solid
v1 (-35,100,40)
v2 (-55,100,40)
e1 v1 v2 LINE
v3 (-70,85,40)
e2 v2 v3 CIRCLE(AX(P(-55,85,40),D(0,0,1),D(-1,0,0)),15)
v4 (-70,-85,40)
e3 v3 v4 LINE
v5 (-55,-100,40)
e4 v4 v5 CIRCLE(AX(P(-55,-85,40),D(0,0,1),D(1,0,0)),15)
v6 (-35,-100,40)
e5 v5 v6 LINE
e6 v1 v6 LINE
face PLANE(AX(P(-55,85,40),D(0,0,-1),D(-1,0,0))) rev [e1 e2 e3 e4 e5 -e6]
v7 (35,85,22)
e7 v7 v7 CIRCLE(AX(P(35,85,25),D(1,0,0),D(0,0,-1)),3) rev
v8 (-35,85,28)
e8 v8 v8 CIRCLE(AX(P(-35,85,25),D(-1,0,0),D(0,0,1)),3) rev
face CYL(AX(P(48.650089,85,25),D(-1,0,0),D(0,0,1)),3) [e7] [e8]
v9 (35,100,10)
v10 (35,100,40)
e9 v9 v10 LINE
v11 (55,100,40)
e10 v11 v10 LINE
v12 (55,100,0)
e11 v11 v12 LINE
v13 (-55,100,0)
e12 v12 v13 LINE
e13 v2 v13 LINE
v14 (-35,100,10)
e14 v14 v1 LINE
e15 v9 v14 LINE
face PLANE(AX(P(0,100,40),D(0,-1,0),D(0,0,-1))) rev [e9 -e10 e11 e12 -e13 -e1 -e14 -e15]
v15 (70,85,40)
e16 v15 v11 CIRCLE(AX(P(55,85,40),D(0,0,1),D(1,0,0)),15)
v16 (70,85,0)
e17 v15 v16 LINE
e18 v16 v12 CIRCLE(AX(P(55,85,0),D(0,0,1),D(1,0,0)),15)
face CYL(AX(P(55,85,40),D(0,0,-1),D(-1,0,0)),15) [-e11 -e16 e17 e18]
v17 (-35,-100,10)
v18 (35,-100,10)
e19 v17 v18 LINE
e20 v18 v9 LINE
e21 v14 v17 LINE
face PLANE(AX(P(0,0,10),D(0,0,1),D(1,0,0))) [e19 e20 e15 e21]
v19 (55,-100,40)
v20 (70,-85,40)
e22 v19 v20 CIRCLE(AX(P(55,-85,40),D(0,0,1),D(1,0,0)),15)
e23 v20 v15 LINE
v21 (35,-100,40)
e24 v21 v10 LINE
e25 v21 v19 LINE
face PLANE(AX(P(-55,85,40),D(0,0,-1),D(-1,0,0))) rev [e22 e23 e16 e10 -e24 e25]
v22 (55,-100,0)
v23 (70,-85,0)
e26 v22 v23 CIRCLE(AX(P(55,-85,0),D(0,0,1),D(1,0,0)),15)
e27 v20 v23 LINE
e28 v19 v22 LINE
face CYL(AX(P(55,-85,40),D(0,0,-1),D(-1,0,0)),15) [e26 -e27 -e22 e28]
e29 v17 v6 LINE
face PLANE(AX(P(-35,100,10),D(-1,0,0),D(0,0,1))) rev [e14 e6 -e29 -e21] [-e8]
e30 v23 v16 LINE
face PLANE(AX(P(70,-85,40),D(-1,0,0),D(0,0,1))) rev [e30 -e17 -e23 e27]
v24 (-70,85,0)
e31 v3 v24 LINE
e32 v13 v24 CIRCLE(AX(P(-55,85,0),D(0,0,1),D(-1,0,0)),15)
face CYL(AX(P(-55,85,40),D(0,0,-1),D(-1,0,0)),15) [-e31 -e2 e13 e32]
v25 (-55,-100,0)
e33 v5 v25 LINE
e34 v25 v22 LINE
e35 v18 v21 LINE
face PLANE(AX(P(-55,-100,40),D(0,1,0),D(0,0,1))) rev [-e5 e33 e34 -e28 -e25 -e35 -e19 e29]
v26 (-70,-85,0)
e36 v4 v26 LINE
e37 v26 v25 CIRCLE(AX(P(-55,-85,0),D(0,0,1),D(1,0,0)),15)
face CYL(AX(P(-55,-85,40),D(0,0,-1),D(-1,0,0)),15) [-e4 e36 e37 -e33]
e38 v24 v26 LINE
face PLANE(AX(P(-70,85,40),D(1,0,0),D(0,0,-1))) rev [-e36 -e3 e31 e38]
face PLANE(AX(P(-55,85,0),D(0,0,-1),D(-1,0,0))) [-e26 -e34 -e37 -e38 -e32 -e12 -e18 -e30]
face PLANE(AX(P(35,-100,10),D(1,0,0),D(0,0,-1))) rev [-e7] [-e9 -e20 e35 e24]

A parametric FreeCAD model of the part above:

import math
import FreeCAD as App
import Part
import Sketcher

doc = App.newDocument("Part")
body = doc.addObject("PartDesign::Body", "Body")

# Sketch on XY plane
sketch1 = body.newObject("Sketcher::SketchObject", "Sketch")
sketch1.AttachmentSupport = (doc.getObject("XY_Plane"), [""])
sketch1.MapMode = "FlatFace"
sketch1.addGeometry([
    Part.ArcOfCircle(Part.Circle(App.Vector(-55, 85, 0), App.Vector(0, 0, 1), 15), math.radians(90), math.radians(180)),  # 0
    Part.LineSegment(App.Vector(-70, 85, 0), App.Vector(-70, -85, 0)),  # 1
    Part.ArcOfCircle(Part.Circle(App.Vector(-55, -85, 0), App.Vector(0, 0, 1), 15), math.radians(180), math.radians(270)),  # 2
    Part.LineSegment(App.Vector(-55, -100, 0), App.Vector(55, -100, 0)),  # 3
    Part.ArcOfCircle(Part.Circle(App.Vector(55, -85, 0), App.Vector(0, 0, 1), 15), math.radians(-90), math.radians(0)),  # 4
    Part.LineSegment(App.Vector(70, -85, 0), App.Vector(70, 85, 0)),  # 5
    Part.ArcOfCircle(Part.Circle(App.Vector(55, 85, 0), App.Vector(0, 0, 1), 15), math.radians(0), math.radians(90)),  # 6
    Part.LineSegment(App.Vector(55, 100, 0), App.Vector(-55, 100, 0)),  # 7
], False)
sketch1.addConstraint([
    Sketcher.Constraint("Tangent", 0, 2, 1, 1),
    Sketcher.Constraint("Tangent", 1, 2, 2, 1),
    Sketcher.Constraint("Tangent", 2, 2, 3, 1),
    Sketcher.Constraint("Tangent", 3, 2, 4, 1),
    Sketcher.Constraint("Tangent", 4, 2, 5, 1),
    Sketcher.Constraint("Tangent", 5, 2, 6, 1),
    Sketcher.Constraint("Tangent", 6, 2, 7, 1),
    Sketcher.Constraint("Tangent", 7, 2, 0, 1),
    Sketcher.Constraint("Vertical", 1),
    Sketcher.Constraint("Horizontal", 3),
    Sketcher.Constraint("Vertical", 5),
    Sketcher.Constraint("Horizontal", 7),
    Sketcher.Constraint("Equal", 0, 2),
    Sketcher.Constraint("Equal", 2, 4),
    Sketcher.Constraint("Equal", 4, 6),
    Sketcher.Constraint("Symmetric", 0, 3, 4, 3, -1, 1),
    Sketcher.Constraint("Radius", 0, 15.0),
    Sketcher.Constraint("DistanceX", 3, 1, 3, 2, 110.0),
    Sketcher.Constraint("DistanceY", 1, 2, 1, 1, 170.0),
])
pad1 = body.newObject("PartDesign::Pad", "Pad")
pad1.Profile = sketch1
pad1.Length = 40

# Sketch on XY plane
sketch2 = body.newObject("Sketcher::SketchObject", "Sketch001")
sketch2.AttachmentSupport = (doc.getObject("XY_Plane"), [""])
sketch2.MapMode = "FlatFace"
sketch2.AttachmentOffset = App.Placement(App.Vector(0, 0, 40), App.Rotation())
sketch2.addGeometry([
    Part.LineSegment(App.Vector(-35, 100, 0), App.Vector(-35, -100, 0)),
    Part.LineSegment(App.Vector(-35, -100, 0), App.Vector(35, -100, 0)),
    Part.LineSegment(App.Vector(35, -100, 0), App.Vector(35, 100, 0)),
    Part.LineSegment(App.Vector(35, 100, 0), App.Vector(-35, 100, 0)),
], False)
sketch2.addConstraint([
    Sketcher.Constraint("Coincident", 0, 2, 1, 1),
    Sketcher.Constraint("Coincident", 1, 2, 2, 1),
    Sketcher.Constraint("Coincident", 2, 2, 3, 1),
    Sketcher.Constraint("Coincident", 3, 2, 0, 1),
    Sketcher.Constraint("Vertical", 0),
    Sketcher.Constraint("Horizontal", 1),
    Sketcher.Constraint("Vertical", 2),
    Sketcher.Constraint("Horizontal", 3),
    Sketcher.Constraint("Symmetric", 0, 2, 2, 2, -1, 1),
    Sketcher.Constraint("DistanceX", 1, 1, 1, 2, 70.0),
    Sketcher.Constraint("DistanceY", 0, 2, 0, 1, 200.0),
])
pocket1 = body.newObject("PartDesign::Pocket", "Pocket")
pocket1.Profile = sketch2
pocket1.Length = 30

# Sketch on YZ plane
sketch3 = body.newObject("Sketcher::SketchObject", "Sketch002")
sketch3.AttachmentSupport = (doc.getObject("YZ_Plane"), [""])
sketch3.MapMode = "FlatFace"
sketch3.AttachmentOffset = App.Placement(App.Vector(0, 0, -35), App.Rotation())
sketch3.addGeometry(Part.Circle(App.Vector(85, 25, 0), App.Vector(0, 0, 1), 3), False)
sketch3.addConstraint([
    Sketcher.Constraint("Diameter", 0, 6.0),
    Sketcher.Constraint("DistanceX", -1, 1, 0, 3, 85.0),
    Sketcher.Constraint("DistanceY", -1, 1, 0, 3, 25.0),
])
pad2 = body.newObject("PartDesign::Pad", "Pad001")
pad2.Profile = sketch3
pad2.Length = 83.650089

doc.recompute()
